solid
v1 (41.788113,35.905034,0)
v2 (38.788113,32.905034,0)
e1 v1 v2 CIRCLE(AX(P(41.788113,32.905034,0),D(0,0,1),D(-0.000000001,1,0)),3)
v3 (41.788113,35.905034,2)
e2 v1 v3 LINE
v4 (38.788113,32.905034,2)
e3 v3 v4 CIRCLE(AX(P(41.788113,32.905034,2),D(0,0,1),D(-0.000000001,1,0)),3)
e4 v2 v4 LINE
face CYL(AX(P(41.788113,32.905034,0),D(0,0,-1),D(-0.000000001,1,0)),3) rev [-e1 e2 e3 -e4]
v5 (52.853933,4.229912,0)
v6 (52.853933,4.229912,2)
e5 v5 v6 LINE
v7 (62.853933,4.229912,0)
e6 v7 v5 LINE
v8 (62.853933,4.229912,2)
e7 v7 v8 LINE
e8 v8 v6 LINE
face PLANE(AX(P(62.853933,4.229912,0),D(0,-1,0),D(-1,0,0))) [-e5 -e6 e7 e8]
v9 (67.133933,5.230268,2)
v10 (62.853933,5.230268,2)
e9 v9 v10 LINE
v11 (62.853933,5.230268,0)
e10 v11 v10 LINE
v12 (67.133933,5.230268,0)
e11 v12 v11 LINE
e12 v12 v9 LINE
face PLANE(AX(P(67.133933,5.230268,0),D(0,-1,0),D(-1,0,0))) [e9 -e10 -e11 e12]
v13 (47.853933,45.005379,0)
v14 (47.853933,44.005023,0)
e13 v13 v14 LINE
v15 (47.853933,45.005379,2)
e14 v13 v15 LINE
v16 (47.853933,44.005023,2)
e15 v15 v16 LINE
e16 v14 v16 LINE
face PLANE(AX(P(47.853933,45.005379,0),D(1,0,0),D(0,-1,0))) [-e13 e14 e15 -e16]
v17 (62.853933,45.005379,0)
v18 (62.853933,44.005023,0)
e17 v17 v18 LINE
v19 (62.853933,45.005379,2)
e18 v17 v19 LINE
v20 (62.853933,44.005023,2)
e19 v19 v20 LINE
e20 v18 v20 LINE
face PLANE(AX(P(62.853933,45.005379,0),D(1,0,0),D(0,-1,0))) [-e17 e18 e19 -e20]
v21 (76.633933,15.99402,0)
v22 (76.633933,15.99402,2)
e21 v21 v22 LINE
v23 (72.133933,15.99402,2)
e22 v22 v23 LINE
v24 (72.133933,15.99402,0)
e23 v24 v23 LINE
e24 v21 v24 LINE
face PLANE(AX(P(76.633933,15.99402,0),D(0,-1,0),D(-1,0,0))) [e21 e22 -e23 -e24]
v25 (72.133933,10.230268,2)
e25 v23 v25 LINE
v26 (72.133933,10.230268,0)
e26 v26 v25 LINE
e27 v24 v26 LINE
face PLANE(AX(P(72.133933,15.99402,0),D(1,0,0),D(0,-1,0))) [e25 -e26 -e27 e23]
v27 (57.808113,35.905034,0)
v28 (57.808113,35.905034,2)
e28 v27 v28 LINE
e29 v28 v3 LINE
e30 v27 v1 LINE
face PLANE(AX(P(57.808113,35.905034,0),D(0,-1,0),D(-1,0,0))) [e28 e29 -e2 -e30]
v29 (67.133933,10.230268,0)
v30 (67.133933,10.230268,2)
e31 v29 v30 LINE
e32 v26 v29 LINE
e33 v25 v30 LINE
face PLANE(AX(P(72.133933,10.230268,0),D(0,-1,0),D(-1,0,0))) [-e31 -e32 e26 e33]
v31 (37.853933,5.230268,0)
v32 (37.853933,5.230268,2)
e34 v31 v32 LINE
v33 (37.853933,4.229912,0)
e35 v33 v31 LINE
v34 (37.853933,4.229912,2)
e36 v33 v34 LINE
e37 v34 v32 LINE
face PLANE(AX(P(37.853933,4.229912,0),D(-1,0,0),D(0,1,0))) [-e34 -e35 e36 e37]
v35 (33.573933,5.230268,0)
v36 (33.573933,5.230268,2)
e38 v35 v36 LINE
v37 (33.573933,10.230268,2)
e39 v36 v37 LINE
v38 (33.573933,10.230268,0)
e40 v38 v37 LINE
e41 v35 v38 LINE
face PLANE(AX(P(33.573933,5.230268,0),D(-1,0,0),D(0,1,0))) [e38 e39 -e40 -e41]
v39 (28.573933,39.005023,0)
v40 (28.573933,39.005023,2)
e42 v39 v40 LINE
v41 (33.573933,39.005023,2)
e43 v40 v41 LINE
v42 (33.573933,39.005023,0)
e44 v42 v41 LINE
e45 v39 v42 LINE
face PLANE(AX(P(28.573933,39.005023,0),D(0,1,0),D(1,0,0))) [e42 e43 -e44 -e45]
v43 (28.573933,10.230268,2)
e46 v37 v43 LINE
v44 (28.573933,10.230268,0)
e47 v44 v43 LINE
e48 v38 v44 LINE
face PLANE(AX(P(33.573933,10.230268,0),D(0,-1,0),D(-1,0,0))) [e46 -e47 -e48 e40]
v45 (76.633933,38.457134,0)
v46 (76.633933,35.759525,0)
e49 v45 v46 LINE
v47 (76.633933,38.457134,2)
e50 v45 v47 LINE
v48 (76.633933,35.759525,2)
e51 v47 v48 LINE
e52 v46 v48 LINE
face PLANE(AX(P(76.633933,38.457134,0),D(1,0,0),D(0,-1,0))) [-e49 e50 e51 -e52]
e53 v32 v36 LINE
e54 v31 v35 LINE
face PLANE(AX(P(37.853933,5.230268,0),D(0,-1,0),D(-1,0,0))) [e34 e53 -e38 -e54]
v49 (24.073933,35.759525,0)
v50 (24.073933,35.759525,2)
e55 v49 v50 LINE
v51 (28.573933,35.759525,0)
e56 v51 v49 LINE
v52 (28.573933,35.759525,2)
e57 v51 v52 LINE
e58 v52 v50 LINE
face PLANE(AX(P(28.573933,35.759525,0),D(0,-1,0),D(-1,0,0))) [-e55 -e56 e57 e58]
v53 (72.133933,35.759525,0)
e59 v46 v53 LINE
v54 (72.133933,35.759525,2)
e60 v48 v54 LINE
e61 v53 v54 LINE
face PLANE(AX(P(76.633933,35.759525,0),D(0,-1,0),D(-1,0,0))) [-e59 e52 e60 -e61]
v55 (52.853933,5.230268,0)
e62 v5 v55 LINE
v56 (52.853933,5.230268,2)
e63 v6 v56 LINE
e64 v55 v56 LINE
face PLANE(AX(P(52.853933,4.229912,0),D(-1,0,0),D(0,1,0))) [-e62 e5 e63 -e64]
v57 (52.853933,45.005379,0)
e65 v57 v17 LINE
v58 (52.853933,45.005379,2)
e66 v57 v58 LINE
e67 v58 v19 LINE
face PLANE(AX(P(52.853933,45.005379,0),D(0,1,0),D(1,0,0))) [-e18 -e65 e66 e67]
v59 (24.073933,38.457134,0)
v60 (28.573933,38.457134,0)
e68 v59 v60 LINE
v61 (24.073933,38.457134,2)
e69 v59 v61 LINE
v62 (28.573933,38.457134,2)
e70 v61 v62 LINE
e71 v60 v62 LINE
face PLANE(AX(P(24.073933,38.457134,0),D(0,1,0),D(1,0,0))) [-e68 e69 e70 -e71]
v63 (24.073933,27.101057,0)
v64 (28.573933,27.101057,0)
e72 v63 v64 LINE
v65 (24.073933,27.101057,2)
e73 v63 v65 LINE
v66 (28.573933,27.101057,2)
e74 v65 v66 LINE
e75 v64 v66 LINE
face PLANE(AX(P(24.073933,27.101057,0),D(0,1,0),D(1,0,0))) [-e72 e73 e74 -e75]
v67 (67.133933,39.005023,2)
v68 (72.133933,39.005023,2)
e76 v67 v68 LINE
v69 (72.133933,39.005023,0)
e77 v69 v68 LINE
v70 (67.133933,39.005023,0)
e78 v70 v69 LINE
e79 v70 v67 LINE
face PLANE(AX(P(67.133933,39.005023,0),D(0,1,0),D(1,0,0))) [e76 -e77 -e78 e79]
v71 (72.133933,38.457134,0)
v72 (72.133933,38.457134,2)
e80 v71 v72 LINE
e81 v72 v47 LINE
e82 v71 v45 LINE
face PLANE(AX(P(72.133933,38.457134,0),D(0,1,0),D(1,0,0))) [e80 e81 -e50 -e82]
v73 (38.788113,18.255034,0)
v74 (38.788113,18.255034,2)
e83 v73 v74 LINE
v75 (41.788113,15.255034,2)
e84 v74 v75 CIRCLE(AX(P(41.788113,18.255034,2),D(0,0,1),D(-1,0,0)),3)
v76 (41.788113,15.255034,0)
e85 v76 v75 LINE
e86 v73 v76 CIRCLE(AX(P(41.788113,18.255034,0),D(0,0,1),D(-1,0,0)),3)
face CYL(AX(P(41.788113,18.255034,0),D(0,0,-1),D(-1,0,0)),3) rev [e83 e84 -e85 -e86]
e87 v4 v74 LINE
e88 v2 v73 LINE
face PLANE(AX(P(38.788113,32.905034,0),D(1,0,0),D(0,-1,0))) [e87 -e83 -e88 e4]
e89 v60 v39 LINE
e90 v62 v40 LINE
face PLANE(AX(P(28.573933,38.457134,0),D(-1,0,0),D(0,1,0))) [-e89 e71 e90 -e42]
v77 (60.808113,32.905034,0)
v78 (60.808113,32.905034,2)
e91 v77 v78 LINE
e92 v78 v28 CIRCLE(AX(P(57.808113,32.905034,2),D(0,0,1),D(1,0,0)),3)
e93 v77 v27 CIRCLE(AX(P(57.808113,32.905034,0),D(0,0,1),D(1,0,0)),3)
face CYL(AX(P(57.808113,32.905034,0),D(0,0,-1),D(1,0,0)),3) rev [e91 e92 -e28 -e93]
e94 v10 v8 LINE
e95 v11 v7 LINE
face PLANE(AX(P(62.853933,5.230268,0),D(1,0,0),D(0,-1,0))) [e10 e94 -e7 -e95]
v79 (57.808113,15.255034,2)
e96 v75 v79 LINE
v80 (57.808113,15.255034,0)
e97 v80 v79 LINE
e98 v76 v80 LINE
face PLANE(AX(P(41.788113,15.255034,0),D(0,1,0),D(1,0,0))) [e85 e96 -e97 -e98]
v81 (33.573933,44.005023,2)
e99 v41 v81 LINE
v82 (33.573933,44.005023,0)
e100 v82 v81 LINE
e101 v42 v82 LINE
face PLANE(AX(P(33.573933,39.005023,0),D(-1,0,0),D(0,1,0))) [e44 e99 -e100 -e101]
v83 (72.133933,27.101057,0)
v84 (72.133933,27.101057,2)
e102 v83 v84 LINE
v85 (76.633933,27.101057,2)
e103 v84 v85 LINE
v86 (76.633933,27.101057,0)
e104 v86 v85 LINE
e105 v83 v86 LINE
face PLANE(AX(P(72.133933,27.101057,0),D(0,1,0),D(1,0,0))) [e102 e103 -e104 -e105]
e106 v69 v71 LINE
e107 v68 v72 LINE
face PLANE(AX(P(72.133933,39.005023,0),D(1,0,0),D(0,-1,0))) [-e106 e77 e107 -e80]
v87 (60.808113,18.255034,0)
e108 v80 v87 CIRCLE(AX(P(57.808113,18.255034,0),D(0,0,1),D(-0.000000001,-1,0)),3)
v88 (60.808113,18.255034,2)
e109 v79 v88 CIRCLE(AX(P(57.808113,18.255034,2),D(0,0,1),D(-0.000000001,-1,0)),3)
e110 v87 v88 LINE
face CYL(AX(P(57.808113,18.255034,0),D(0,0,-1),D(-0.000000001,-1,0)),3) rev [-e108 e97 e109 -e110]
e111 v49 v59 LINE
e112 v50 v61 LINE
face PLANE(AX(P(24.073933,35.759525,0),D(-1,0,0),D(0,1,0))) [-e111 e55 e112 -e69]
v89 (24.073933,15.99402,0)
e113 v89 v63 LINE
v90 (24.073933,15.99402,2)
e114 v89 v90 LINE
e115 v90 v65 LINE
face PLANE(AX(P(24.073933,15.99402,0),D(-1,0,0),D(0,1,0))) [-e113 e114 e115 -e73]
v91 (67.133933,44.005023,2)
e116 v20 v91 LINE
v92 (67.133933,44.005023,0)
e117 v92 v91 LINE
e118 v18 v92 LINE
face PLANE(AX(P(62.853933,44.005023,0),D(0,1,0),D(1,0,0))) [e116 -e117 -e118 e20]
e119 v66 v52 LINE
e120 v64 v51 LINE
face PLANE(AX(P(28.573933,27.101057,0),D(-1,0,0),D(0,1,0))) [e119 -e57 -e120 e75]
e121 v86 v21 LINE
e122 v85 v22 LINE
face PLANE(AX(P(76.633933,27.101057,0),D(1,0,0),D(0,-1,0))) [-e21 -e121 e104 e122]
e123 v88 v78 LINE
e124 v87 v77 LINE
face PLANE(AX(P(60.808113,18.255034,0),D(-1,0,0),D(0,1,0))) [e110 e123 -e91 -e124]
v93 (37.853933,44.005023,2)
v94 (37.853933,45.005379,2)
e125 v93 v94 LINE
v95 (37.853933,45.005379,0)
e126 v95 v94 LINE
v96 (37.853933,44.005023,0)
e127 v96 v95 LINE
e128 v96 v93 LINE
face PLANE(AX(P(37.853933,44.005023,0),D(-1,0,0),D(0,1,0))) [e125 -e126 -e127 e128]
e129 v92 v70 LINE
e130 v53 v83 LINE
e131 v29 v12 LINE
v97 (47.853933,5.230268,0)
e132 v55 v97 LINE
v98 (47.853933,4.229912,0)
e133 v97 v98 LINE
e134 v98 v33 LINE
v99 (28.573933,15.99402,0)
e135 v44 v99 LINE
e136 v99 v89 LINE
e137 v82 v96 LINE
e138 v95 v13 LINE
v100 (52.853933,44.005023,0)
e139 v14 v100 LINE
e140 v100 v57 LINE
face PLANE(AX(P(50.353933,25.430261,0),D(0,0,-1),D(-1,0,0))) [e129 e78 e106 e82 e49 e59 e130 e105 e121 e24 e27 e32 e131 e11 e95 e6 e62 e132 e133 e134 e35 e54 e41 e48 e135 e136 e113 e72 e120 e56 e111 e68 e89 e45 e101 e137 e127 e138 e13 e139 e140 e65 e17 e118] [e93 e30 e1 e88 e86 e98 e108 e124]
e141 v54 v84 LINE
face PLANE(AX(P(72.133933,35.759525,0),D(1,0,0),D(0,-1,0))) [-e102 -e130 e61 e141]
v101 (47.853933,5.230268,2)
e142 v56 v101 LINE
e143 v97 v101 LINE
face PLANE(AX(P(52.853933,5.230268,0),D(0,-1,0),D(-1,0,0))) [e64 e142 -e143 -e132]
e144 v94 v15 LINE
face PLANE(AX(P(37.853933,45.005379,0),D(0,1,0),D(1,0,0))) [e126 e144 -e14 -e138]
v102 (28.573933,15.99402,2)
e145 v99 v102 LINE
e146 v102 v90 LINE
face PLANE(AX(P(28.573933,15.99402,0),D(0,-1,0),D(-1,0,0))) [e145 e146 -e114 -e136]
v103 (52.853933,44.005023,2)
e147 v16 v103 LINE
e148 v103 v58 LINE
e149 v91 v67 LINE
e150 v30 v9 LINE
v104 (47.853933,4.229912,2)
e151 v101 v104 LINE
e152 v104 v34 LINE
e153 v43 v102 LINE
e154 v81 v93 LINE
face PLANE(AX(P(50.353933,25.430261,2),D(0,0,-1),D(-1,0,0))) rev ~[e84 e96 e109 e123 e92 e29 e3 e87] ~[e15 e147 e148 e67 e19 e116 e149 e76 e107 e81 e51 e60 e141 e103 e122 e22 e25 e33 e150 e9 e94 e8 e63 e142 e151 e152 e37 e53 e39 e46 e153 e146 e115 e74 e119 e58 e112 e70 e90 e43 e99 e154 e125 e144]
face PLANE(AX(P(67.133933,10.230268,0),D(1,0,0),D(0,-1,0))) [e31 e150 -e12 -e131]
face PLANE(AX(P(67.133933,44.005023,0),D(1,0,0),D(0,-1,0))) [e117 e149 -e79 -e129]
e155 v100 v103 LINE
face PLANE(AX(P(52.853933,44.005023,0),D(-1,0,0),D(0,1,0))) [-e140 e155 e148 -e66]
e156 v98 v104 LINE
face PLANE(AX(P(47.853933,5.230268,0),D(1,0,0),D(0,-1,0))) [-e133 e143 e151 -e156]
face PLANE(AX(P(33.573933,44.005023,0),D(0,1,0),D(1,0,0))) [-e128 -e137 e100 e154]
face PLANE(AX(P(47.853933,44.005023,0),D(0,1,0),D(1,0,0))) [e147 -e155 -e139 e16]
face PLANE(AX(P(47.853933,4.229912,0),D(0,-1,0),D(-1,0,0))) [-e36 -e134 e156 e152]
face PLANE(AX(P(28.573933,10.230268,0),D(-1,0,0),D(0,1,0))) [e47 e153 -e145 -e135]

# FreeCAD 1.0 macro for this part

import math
import FreeCAD as App
import Part
import Sketcher
from FreeCAD import Vector
Q = App.Units.Quantity

doc = App.newDocument("Part")
body = doc.addObject("PartDesign::Body", "Body")

sketch1 = body.newObject("Sketcher::SketchObject", "Sketch")
sketch1.AttachmentSupport = (doc.getObject("XY_Plane"), [""])
sketch1.MapMode = "FlatFace"
sketch1.addGeometry([
    Part.LineSegment(Vector(37.853933, 44.005023, 0), Vector(33.573933, 44.005023, 0)),
    Part.LineSegment(Vector(33.573933, 44.005023, 0), Vector(33.573933, 39.005023, 0)),
    Part.LineSegment(Vector(33.573933, 39.005023, 0), Vector(28.573933, 39.005023, 0)),
    Part.LineSegment(Vector(28.573933, 39.005023, 0), Vector(28.573933, 38.457134, 0)),
    Part.LineSegment(Vector(28.573933, 38.457134, 0), Vector(24.073933, 38.457134, 0)),
    Part.LineSegment(Vector(24.073933, 38.457134, 0), Vector(24.073933, 35.759525, 0)),
    Part.LineSegment(Vector(24.073933, 35.759525, 0), Vector(28.573933, 35.759525, 0)),
    Part.LineSegment(Vector(28.573933, 35.759525, 0), Vector(28.573933, 27.101057, 0)),
    Part.LineSegment(Vector(28.573933, 27.101057, 0), Vector(24.073933, 27.101057, 0)),
    Part.LineSegment(Vector(24.073933, 27.101057, 0), Vector(24.073933, 15.99402, 0)),
    Part.LineSegment(Vector(24.073933, 15.99402, 0), Vector(28.573933, 15.99402, 0)),
    Part.LineSegment(Vector(28.573933, 15.99402, 0), Vector(28.573933, 10.230268, 0)),
    Part.LineSegment(Vector(28.573933, 10.230268, 0), Vector(33.573933, 10.230268, 0)),
    Part.LineSegment(Vector(33.573933, 10.230268, 0), Vector(33.573933, 5.230268, 0)),
    Part.LineSegment(Vector(33.573933, 5.230268, 0), Vector(37.853933, 5.230268, 0)),
    Part.LineSegment(Vector(37.853933, 5.230268, 0), Vector(37.853933, 4.229912, 0)),
    Part.LineSegment(Vector(37.853933, 4.229912, 0), Vector(47.853933, 4.229912, 0)),
    Part.LineSegment(Vector(47.853933, 4.229912, 0), Vector(47.853933, 5.230268, 0)),
    Part.LineSegment(Vector(47.853933, 5.230268, 0), Vector(52.853933, 5.230268, 0)),
    Part.LineSegment(Vector(52.853933, 5.230268, 0), Vector(52.853933, 4.229912, 0)),
    Part.LineSegment(Vector(52.853933, 4.229912, 0), Vector(62.853933, 4.229912, 0)),
    Part.LineSegment(Vector(62.853933, 4.229912, 0), Vector(62.853933, 5.230268, 0)),
    Part.LineSegment(Vector(62.853933, 5.230268, 0), Vector(67.133933, 5.230268, 0)),
    Part.LineSegment(Vector(67.133933, 5.230268, 0), Vector(67.133933, 10.230268, 0)),
    Part.LineSegment(Vector(67.133933, 10.230268, 0), Vector(72.133933, 10.230268, 0)),
    Part.LineSegment(Vector(72.133933, 10.230268, 0), Vector(72.133933, 15.99402, 0)),
    Part.LineSegment(Vector(72.133933, 15.99402, 0), Vector(76.633933, 15.99402, 0)),
    Part.LineSegment(Vector(76.633933, 15.99402, 0), Vector(76.633933, 27.101057, 0)),
    Part.LineSegment(Vector(76.633933, 27.101057, 0), Vector(72.133933, 27.101057, 0)),
    Part.LineSegment(Vector(72.133933, 27.101057, 0), Vector(72.133933, 35.759525, 0)),
    Part.LineSegment(Vector(72.133933, 35.759525, 0), Vector(76.633933, 35.759525, 0)),
    Part.LineSegment(Vector(76.633933, 35.759525, 0), Vector(76.633933, 38.457134, 0)),
    Part.LineSegment(Vector(76.633933, 38.457134, 0), Vector(72.133933, 38.457134, 0)),
    Part.LineSegment(Vector(72.133933, 38.457134, 0), Vector(72.133933, 39.005023, 0)),
    Part.LineSegment(Vector(72.133933, 39.005023, 0), Vector(67.133933, 39.005023, 0)),
    Part.LineSegment(Vector(67.133933, 39.005023, 0), Vector(67.133933, 44.005023, 0)),
    Part.LineSegment(Vector(67.133933, 44.005023, 0), Vector(62.853933, 44.005023, 0)),
    Part.LineSegment(Vector(62.853933, 44.005023, 0), Vector(62.853933, 45.005379, 0)),
    Part.LineSegment(Vector(62.853933, 45.005379, 0), Vector(52.853933, 45.005379, 0)),
    Part.LineSegment(Vector(52.853933, 45.005379, 0), Vector(52.853933, 44.005023, 0)),
    Part.LineSegment(Vector(52.853933, 44.005023, 0), Vector(47.853933, 44.005023, 0)),
    Part.LineSegment(Vector(47.853933, 44.005023, 0), Vector(47.853933, 45.005379, 0)),
    Part.LineSegment(Vector(47.853933, 45.005379, 0), Vector(37.853933, 45.005379, 0)),
    Part.LineSegment(Vector(37.853933, 45.005379, 0), Vector(37.853933, 44.005023, 0)),
    Part.ArcOfCircle(Part.Circle(Vector(57.808113, 32.905034, 0), Vector(0, 0, 1), 3), math.radians(0), math.radians(90)),
    Part.LineSegment(Vector(60.808113, 32.905034, 0), Vector(60.808113, 18.255034, 0)),
    Part.ArcOfCircle(Part.Circle(Vector(57.808113, 18.255034, 0), Vector(0, 0, 1), 3), math.radians(-90), math.radians(0)),
    Part.LineSegment(Vector(57.808113, 15.255034, 0), Vector(41.788113, 15.255034, 0)),
    Part.ArcOfCircle(Part.Circle(Vector(41.788113, 18.255034, 0), Vector(0, 0, 1), 3), math.radians(180), math.radians(270)),
    Part.LineSegment(Vector(38.788113, 18.255034, 0), Vector(38.788113, 32.905034, 0)),
    Part.ArcOfCircle(Part.Circle(Vector(41.788113, 32.905034, 0), Vector(0, 0, 1), 3), math.radians(90), math.radians(180)),
    Part.LineSegment(Vector(41.788113, 35.905034, 0), Vector(57.808113, 35.905034, 0)),
], False)
sketch1.addConstraint([
    Sketcher.Constraint("Coincident", 0, 2, 1, 1),
    Sketcher.Constraint("Coincident", 1, 2, 2, 1),
    Sketcher.Constraint("Coincident", 2, 2, 3, 1),
    Sketcher.Constraint("Coincident", 3, 2, 4, 1),
    Sketcher.Constraint("Coincident", 4, 2, 5, 1),
    Sketcher.Constraint("Coincident", 5, 2, 6, 1),
    Sketcher.Constraint("Coincident", 6, 2, 7, 1),
    Sketcher.Constraint("Coincident", 7, 2, 8, 1),
    Sketcher.Constraint("Coincident", 8, 2, 9, 1),
    Sketcher.Constraint("Coincident", 9, 2, 10, 1),
    Sketcher.Constraint("Coincident", 10, 2, 11, 1),
    Sketcher.Constraint("Coincident", 11, 2, 12, 1),
    Sketcher.Constraint("Coincident", 12, 2, 13, 1),
    Sketcher.Constraint("Coincident", 13, 2, 14, 1),
    Sketcher.Constraint("Coincident", 14, 2, 15, 1),
    Sketcher.Constraint("Coincident", 15, 2, 16, 1),
    Sketcher.Constraint("Coincident", 16, 2, 17, 1),
    Sketcher.Constraint("Coincident", 17, 2, 18, 1),
    Sketcher.Constraint("Coincident", 18, 2, 19, 1),
    Sketcher.Constraint("Coincident", 19, 2, 20, 1),
    Sketcher.Constraint("Coincident", 20, 2, 21, 1),
    Sketcher.Constraint("Coincident", 21, 2, 22, 1),
    Sketcher.Constraint("Coincident", 22, 2, 23, 1),
    Sketcher.Constraint("Coincident", 23, 2, 24, 1),
    Sketcher.Constraint("Coincident", 24, 2, 25, 1),
    Sketcher.Constraint("Coincident", 25, 2, 26, 1),
    Sketcher.Constraint("Coincident", 26, 2, 27, 1),
    Sketcher.Constraint("Coincident", 27, 2, 28, 1),
    Sketcher.Constraint("Coincident", 28, 2, 29, 1),
    Sketcher.Constraint("Coincident", 29, 2, 30, 1),
    Sketcher.Constraint("Coincident", 30, 2, 31, 1),
    Sketcher.Constraint("Coincident", 31, 2, 32, 1),
    Sketcher.Constraint("Coincident", 32, 2, 33, 1),
    Sketcher.Constraint("Coincident", 33, 2, 34, 1),
    Sketcher.Constraint("Coincident", 34, 2, 35, 1),
    Sketcher.Constraint("Coincident", 35, 2, 36, 1),
    Sketcher.Constraint("Coincident", 36, 2, 37, 1),
    Sketcher.Constraint("Coincident", 37, 2, 38, 1),
    Sketcher.Constraint("Coincident", 38, 2, 39, 1),
    Sketcher.Constraint("Coincident", 39, 2, 40, 1),
    Sketcher.Constraint("Coincident", 40, 2, 41, 1),
    Sketcher.Constraint("Coincident", 41, 2, 42, 1),
    Sketcher.Constraint("Coincident", 42, 2, 43, 1),
    Sketcher.Constraint("Coincident", 43, 2, 0, 1),
    Sketcher.Constraint("Tangent", 44, 1, 45, 1),
    Sketcher.Constraint("Tangent", 45, 2, 46, 2),
    Sketcher.Constraint("Tangent", 46, 1, 47, 1),
    Sketcher.Constraint("Tangent", 47, 2, 48, 2),
    Sketcher.Constraint("Tangent", 48, 1, 49, 1),
    Sketcher.Constraint("Tangent", 49, 2, 50, 2),
    Sketcher.Constraint("Tangent", 50, 1, 51, 1),
    Sketcher.Constraint("Tangent", 51, 2, 44, 2),
    Sketcher.Constraint("Horizontal", 0),
    Sketcher.Constraint("Vertical", 1),
    Sketcher.Constraint("Horizontal", 2),
    Sketcher.Constraint("Vertical", 3),
    Sketcher.Constraint("Horizontal", 4),
    Sketcher.Constraint("Vertical", 5),
    Sketcher.Constraint("Horizontal", 6),
    Sketcher.Constraint("Vertical", 7),
    Sketcher.Constraint("Horizontal", 8),
    Sketcher.Constraint("Vertical", 9),
    Sketcher.Constraint("Horizontal", 10),
    Sketcher.Constraint("Vertical", 11),
    Sketcher.Constraint("Horizontal", 12),
    Sketcher.Constraint("Vertical", 13),
    Sketcher.Constraint("Horizontal", 14),
    Sketcher.Constraint("Vertical", 15),
    Sketcher.Constraint("Horizontal", 16),
    Sketcher.Constraint("Vertical", 17),
    Sketcher.Constraint("Horizontal", 18),
    Sketcher.Constraint("Vertical", 19),
    Sketcher.Constraint("Horizontal", 20),
    Sketcher.Constraint("Vertical", 21),
    Sketcher.Constraint("Horizontal", 22),
    Sketcher.Constraint("Vertical", 23),
    Sketcher.Constraint("Horizontal", 24),
    Sketcher.Constraint("Vertical", 25),
    Sketcher.Constraint("Horizontal", 26),
    Sketcher.Constraint("Vertical", 27),
    Sketcher.Constraint("Horizontal", 28),
    Sketcher.Constraint("Vertical", 29),
    Sketcher.Constraint("Horizontal", 30),
    Sketcher.Constraint("Vertical", 31),
    Sketcher.Constraint("Horizontal", 32),
    Sketcher.Constraint("Vertical", 33),
    Sketcher.Constraint("Horizontal", 34),
    Sketcher.Constraint("Vertical", 35),
    Sketcher.Constraint("Horizontal", 36),
    Sketcher.Constraint("Vertical", 37),
    Sketcher.Constraint("Horizontal", 38),
    Sketcher.Constraint("Vertical", 39),
    Sketcher.Constraint("Horizontal", 40),
    Sketcher.Constraint("Vertical", 41),
    Sketcher.Constraint("Horizontal", 42),
    Sketcher.Constraint("Vertical", 43),
    Sketcher.Constraint("Vertical", 45),
    Sketcher.Constraint("Horizontal", 47),
    Sketcher.Constraint("Vertical", 49),
    Sketcher.Constraint("Horizontal", 51),
    Sketcher.Constraint("Equal", 44, 46),
    Sketcher.Constraint("Equal", 46, 48),
    Sketcher.Constraint("Equal", 48, 50),
    Sketcher.Constraint("Horizontal", 14, 2, 17, 2),
    Sketcher.Constraint("Horizontal", 16, 2, 19, 2),
    Sketcher.Constraint("Horizontal", 18, 2, 21, 2),
    Sketcher.Constraint("Horizontal", 12, 2, 23, 2),
    Sketcher.Constraint("Horizontal", 10, 2, 25, 2),
    Sketcher.Constraint("Horizontal", 8, 2, 27, 2),
    Sketcher.Constraint("Horizontal", 6, 2, 29, 2),
    Sketcher.Constraint("Horizontal", 4, 2, 31, 2),
    Sketcher.Constraint("Horizontal", 2, 2, 33, 2),
    Sketcher.Constraint("Horizontal", 0, 2, 35, 2),
    Sketcher.Constraint("Horizontal", 36, 2, 39, 2),
    Sketcher.Constraint("Horizontal", 38, 2, 41, 2),
    Sketcher.Constraint("Vertical", 3, 2, 6, 2),
    Sketcher.Constraint("Vertical", 5, 2, 8, 2),
    Sketcher.Constraint("Vertical", 7, 2, 10, 2),
    Sketcher.Constraint("Vertical", 1, 2, 12, 2),
    Sketcher.Constraint("Vertical", 25, 2, 28, 2),
    Sketcher.Constraint("Vertical", 27, 2, 30, 2),
    Sketcher.Constraint("Vertical", 29, 2, 32, 2),
    Sketcher.Constraint("Vertical", 23, 2, 34, 2),
    Sketcher.Constraint("Vertical", 21, 2, 36, 2),
    Sketcher.Constraint("Vertical", 19, 2, 38, 2),
    Sketcher.Constraint("Vertical", 17, 2, 40, 2),
    Sketcher.Constraint("Vertical", 15, 2, 42, 2),
    Sketcher.Constraint("Equal", 12, 18),
    Sketcher.Constraint("Equal", 16, 20),
    Sketcher.Constraint("Equal", 14, 22),
    Sketcher.Constraint("Equal", 18, 24),
    Sketcher.Constraint("Equal", 10, 26),
    Sketcher.Constraint("Equal", 40, 1),
    Sketcher.Constraint("Equal", 1, 13),
    Sketcher.Constraint("Equal", 21, 37),
    Sketcher.Constraint("Radius", 44, Q("3 mm")),
    Sketcher.Constraint("DistanceX", 2, 2, 2, 1, Q("5 mm")),
    Sketcher.Constraint("DistanceX", 16, 1, 16, 2, Q("10 mm")),
    Sketcher.Constraint("DistanceX", 4, 2, 4, 1, Q("4.5 mm")),
    Sketcher.Constraint("DistanceX", 0, 2, 0, 1, Q("4.28 mm")),
    Sketcher.Constraint("DistanceX", 47, 2, 47, 1, Q("16.02 mm")),
    Sketcher.Constraint("DistanceY", 45, 2, 45, 1, Q("14.65 mm")),
    Sketcher.Constraint("DistanceY", 3, 2, 3, 1, Q("0.547889 mm")),
    Sketcher.Constraint("DistanceY", 5, 2, 5, 1, Q("2.69761 mm")),
    Sketcher.Constraint("DistanceY", 11, 2, 11, 1, Q("5.763752 mm")),
    Sketcher.Constraint("DistanceY", 50, 3, 3, 2, Q("5.5521 mm")),
    Sketcher.Constraint("DistanceY", 7, 2, 7, 1, Q("8.658468 mm")),
    Sketcher.Constraint("DistanceY", 9, 2, 9, 1, Q("11.107037 mm")),
    Sketcher.Constraint("DistanceY", 15, 2, 15, 1, Q("1.000356 mm")),
    Sketcher.Constraint("DistanceY", -1, 1, 9, 2, Q("15.99402 mm")),
    Sketcher.Constraint("DistanceX", 0, 2, 50, 3, Q("8.214179 mm")),
    Sketcher.Constraint("DistanceX", -1, 1, 44, 3, Q("57.808113 mm")),
])
pad1 = body.newObject("PartDesign::Pad", "Pad")
pad1.Profile = sketch1
pad1.Length = 2

doc.recompute()
